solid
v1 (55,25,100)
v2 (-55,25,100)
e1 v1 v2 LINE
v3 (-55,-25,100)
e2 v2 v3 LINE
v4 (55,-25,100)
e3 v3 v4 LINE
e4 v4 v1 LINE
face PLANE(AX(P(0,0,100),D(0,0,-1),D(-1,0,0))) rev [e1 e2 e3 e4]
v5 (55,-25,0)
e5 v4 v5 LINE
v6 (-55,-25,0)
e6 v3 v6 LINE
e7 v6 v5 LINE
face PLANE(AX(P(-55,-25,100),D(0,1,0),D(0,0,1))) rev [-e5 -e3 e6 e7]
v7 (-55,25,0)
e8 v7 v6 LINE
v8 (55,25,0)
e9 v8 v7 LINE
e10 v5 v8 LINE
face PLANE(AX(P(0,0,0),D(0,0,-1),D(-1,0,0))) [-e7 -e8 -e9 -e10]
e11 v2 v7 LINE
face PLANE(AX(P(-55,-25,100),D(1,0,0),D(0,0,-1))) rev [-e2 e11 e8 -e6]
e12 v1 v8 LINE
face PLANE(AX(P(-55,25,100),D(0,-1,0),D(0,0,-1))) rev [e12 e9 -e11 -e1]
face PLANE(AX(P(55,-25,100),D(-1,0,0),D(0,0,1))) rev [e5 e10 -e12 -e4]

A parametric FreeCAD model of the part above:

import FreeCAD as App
import Part
import Sketcher

V = App.Vector

doc = App.newDocument("Part")
body = doc.addObject("PartDesign::Body", "Body")

# Sketch on XY plane
sketch1 = doc.addObject("Sketcher::SketchObject", "Sketch")
body.addObject(sketch1)
sketch1.AttachmentSupport = (doc.XY_Plane, [""])
sketch1.MapMode = "FlatFace"
sketch1.addGeometry(Part.LineSegment(V(-55, 25, 0), V(-55, -25, 0)), False)
sketch1.addGeometry(Part.LineSegment(V(-55, -25, 0), V(55, -25, 0)), False)
sketch1.addGeometry(Part.LineSegment(V(55, -25, 0), V(55, 25, 0)), False)
sketch1.addGeometry(Part.LineSegment(V(55, 25, 0), V(-55, 25, 0)), False)
sketch1.addConstraint(Sketcher.Constraint("Coincident", 0, 2, 1, 1))
sketch1.addConstraint(Sketcher.Constraint("Coincident", 1, 2, 2, 1))
sketch1.addConstraint(Sketcher.Constraint("Coincident", 2, 2, 3, 1))
sketch1.addConstraint(Sketcher.Constraint("Coincident", 3, 2, 0, 1))
sketch1.addConstraint(Sketcher.Constraint("Vertical", 0))
sketch1.addConstraint(Sketcher.Constraint("Horizontal", 1))
sketch1.addConstraint(Sketcher.Constraint("Vertical", 2))
sketch1.addConstraint(Sketcher.Constraint("Horizontal", 3))
sketch1.addConstraint(Sketcher.Constraint("Symmetric", 0, 2, 2, 2, -1, 1))
sketch1.addConstraint(Sketcher.Constraint("DistanceX", 1, 1, 1, 2, 110.0))
sketch1.addConstraint(Sketcher.Constraint("DistanceY", 0, 2, 0, 1, 50.0))
pad1 = doc.addObject("PartDesign::Pad", "Pad")
body.addObject(pad1)
pad1.Profile = sketch1
pad1.Length = 100

doc.recompute()
